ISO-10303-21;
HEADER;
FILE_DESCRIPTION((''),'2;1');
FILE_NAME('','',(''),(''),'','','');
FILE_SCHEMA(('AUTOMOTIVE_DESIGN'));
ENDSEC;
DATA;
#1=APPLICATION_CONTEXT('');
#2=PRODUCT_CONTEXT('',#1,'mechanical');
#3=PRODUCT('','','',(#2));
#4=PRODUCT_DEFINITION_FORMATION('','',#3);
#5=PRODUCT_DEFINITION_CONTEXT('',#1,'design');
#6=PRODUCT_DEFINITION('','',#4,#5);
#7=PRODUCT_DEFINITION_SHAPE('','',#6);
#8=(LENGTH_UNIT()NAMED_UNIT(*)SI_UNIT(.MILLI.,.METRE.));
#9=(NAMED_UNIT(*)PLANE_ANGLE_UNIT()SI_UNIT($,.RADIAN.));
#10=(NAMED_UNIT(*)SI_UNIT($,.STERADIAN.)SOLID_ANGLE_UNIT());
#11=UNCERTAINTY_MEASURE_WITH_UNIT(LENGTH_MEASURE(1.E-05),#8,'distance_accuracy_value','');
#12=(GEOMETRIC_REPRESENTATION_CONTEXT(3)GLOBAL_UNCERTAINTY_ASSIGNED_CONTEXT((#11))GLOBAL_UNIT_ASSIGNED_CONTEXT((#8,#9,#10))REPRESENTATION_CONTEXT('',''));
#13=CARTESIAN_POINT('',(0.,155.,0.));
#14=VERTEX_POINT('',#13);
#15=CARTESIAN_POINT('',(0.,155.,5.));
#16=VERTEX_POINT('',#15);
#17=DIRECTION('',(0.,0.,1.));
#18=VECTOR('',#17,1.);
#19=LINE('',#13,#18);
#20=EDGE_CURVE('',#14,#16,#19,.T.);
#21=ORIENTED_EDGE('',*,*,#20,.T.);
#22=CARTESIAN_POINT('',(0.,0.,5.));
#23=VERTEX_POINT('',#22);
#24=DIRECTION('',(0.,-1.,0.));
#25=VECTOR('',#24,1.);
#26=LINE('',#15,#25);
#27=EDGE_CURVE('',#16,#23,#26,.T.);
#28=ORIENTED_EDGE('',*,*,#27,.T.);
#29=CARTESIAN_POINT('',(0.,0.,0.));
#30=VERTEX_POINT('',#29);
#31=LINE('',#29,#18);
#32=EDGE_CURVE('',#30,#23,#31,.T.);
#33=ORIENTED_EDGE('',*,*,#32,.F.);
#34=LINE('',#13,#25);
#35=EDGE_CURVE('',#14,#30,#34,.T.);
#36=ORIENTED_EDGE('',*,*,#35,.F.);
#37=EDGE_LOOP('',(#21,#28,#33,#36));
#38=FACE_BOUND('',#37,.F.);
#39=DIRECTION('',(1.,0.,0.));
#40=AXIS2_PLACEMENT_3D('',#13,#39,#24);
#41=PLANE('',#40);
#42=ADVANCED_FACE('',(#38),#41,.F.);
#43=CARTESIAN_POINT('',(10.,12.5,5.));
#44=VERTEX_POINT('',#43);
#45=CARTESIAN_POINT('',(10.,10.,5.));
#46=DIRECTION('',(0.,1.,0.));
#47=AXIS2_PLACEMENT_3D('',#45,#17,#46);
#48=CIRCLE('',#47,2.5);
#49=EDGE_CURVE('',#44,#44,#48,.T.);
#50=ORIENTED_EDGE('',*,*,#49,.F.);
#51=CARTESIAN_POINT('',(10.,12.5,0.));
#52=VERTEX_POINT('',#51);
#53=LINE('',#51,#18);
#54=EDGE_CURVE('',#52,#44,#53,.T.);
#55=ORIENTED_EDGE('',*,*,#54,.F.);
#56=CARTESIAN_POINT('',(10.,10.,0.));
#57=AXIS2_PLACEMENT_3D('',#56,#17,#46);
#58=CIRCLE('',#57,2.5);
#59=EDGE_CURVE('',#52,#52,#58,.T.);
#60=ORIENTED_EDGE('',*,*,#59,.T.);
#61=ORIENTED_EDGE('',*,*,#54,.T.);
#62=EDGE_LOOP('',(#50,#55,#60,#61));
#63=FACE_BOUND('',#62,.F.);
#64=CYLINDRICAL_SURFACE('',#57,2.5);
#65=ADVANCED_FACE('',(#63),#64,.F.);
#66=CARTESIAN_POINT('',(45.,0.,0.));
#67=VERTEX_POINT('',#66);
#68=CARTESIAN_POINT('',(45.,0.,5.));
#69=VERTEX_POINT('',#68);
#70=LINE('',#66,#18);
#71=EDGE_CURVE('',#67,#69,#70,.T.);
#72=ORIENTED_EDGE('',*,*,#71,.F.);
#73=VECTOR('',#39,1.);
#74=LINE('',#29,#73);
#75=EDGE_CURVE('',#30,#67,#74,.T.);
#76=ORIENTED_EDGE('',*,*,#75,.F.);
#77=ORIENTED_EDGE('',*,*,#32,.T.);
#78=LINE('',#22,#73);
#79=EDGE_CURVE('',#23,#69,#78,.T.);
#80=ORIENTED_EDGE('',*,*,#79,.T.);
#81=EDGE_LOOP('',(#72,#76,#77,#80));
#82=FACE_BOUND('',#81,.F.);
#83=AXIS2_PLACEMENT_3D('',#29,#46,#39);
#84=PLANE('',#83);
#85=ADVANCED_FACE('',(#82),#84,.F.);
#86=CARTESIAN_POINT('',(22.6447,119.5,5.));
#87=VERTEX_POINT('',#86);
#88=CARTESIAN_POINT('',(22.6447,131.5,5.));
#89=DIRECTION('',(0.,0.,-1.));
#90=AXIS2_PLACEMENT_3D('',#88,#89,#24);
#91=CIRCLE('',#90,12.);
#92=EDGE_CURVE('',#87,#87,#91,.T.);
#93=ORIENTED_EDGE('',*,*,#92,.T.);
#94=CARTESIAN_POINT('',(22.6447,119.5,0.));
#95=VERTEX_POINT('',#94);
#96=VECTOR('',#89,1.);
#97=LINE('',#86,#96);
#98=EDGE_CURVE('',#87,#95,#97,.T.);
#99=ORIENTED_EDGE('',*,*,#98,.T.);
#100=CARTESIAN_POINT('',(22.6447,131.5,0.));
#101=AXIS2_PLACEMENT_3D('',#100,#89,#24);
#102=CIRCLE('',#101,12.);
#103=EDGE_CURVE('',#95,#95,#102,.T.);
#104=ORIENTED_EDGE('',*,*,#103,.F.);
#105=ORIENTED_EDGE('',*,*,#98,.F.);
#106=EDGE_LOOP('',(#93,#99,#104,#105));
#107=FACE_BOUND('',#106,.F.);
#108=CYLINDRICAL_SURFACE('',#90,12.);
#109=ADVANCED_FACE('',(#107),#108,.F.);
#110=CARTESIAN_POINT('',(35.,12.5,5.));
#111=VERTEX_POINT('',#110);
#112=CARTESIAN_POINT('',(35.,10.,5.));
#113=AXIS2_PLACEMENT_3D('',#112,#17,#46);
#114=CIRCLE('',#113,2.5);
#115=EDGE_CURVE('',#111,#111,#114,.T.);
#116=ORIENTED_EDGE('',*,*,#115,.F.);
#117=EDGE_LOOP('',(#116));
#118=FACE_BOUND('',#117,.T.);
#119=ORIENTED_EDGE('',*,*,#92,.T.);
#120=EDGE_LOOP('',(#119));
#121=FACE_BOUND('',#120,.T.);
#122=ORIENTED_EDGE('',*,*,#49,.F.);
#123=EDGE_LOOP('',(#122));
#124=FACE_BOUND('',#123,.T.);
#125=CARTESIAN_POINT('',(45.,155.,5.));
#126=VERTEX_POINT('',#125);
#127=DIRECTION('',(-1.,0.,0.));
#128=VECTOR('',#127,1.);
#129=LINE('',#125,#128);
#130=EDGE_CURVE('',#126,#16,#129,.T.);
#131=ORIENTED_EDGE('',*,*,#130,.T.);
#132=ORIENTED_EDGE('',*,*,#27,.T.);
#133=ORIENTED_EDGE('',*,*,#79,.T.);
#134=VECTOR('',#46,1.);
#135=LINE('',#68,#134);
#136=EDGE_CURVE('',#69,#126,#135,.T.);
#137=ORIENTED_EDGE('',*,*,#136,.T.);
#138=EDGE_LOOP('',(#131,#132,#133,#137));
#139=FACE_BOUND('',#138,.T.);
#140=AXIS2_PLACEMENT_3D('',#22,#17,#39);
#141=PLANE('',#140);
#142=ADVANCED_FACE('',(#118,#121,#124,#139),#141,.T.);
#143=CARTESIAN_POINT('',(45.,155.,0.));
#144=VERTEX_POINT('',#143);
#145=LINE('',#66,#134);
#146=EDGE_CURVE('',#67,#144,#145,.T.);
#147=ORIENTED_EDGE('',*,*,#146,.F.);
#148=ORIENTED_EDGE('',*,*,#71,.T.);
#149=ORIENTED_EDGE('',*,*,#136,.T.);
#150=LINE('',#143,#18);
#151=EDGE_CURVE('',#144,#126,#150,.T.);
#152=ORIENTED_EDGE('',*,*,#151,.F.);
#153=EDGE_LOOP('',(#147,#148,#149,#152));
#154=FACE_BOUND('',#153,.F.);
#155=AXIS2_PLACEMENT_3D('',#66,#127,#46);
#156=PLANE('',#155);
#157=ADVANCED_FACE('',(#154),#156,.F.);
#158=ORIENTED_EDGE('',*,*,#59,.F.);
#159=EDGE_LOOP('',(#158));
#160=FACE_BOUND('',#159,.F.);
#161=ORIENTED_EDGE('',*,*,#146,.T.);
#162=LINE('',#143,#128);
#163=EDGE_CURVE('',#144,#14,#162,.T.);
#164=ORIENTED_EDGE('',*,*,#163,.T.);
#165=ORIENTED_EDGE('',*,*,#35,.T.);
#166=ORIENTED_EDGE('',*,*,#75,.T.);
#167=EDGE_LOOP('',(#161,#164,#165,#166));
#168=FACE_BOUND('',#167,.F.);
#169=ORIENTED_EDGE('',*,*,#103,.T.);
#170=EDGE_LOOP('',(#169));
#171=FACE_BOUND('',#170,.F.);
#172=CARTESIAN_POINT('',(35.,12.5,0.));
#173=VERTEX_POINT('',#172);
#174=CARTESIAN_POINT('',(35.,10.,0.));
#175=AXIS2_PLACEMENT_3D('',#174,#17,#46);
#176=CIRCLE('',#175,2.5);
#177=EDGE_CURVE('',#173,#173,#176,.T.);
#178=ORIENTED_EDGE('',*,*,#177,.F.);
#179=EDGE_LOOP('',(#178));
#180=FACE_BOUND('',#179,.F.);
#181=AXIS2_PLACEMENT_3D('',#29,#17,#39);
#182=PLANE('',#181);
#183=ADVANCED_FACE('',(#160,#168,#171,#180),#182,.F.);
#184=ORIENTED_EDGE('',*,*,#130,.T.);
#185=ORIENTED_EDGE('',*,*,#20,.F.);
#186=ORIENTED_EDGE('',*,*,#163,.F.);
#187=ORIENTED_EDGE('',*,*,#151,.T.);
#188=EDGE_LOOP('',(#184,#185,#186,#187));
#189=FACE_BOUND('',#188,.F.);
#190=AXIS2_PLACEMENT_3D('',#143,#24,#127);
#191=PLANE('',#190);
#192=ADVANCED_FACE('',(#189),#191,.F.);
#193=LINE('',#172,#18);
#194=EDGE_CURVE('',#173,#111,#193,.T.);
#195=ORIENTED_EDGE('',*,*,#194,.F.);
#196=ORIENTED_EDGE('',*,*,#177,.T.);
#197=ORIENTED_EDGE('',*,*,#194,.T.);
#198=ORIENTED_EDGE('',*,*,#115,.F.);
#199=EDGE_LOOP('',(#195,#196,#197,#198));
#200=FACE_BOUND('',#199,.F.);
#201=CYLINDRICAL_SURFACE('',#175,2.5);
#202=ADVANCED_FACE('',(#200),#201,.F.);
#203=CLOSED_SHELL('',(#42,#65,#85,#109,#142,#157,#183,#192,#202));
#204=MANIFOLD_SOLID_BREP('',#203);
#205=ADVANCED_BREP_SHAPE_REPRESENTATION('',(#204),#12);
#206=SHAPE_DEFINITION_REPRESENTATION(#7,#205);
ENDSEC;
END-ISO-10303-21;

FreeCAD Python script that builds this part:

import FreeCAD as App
import Part
import Sketcher
Q = App.Units.Quantity

doc = App.newDocument("Part")
params = doc.addObject("Spreadsheet::Sheet", "Params")
for row, (alias, value) in enumerate([
    ("sketch1_width", "45 mm"),
    ("sketch1_height", "155 mm"),
    ("pad1_length", "5 mm"),
    ("sketch2_diameter", "24 mm"),
    ("hole_diameter", "24 mm"),
    ("sketch3_diameter", "5 mm"),
    ("hole2_diameter", "5 mm"),
], start=1):
    params.set(f"A{row}", alias)
    params.set(f"B{row}", "=" + value)
    params.setAlias(f"B{row}", alias)

body = doc.addObject("PartDesign::Body", "Body")

sketch1 = body.newObject("Sketcher::SketchObject", "Sketch")
sketch1.AttachmentSupport = (doc.getObject("XY_Plane"), [""])
sketch1.MapMode = "FlatFace"
sketch1.addGeometry([
    Part.LineSegment(App.Vector(0, 155, 0), App.Vector(0, 0, 0)),
    Part.LineSegment(App.Vector(0, 0, 0), App.Vector(45, 0, 0)),
    Part.LineSegment(App.Vector(45, 0, 0), App.Vector(45, 155, 0)),
    Part.LineSegment(App.Vector(45, 155, 0), App.Vector(0, 155, 0)),
], False)
sketch1.addConstraint([
    Sketcher.Constraint("Coincident", 0, 2, 1, 1),
    Sketcher.Constraint("Coincident", 1, 2, 2, 1),
    Sketcher.Constraint("Coincident", 2, 2, 3, 1),
    Sketcher.Constraint("Coincident", 3, 2, 0, 1),
    Sketcher.Constraint("Vertical", 0),
    Sketcher.Constraint("Horizontal", 1),
    Sketcher.Constraint("Vertical", 2),
    Sketcher.Constraint("Horizontal", 3),
    Sketcher.Constraint("Coincident", 0, 2, -1, 1),
    Sketcher.Constraint("DistanceX", 1, 1, 1, 2, Q("45 mm")),
    Sketcher.Constraint("DistanceY", 0, 2, 0, 1, Q("155 mm")),
])
sketch1.setExpression("Constraints[9]", "Params.sketch1_width")
sketch1.setExpression("Constraints[10]", "Params.sketch1_height")
pad1 = body.newObject("PartDesign::Pad", "Pad")
pad1.Profile = sketch1
pad1.setExpression("Length", "Params.pad1_length")

sketch2 = body.newObject("Sketcher::SketchObject", "Sketch001")
sketch2.AttachmentSupport = (doc.getObject("XY_Plane"), [""])
sketch2.MapMode = "FlatFace"
sketch2.AttachmentOffset = App.Placement(App.Vector(0, 0, 5), App.Rotation())
sketch2.addGeometry(Part.Circle(App.Vector(23, 132, 0), App.Vector(0, 0, 1), 12), False)
sketch2.addConstraint([
    Sketcher.Constraint("Diameter", 0, Q("24 mm")),
    Sketcher.Constraint("DistanceY", -1, 1, 0, 3, Q("131.5 mm")),
    Sketcher.Constraint("DistanceX", -1, 1, 0, 3, Q("22.6447 mm")),
])
sketch2.setExpression("Constraints[0]", "Params.sketch2_diameter")
doc.recompute()
hole = body.newObject("PartDesign::Hole", "Hole")
hole.Profile = sketch2
hole.ThreadType = "None"
hole.setExpression("Diameter", "Params.hole_diameter")
hole.DepthType = "ThroughAll"

sketch3 = body.newObject("Sketcher::SketchObject", "Sketch002")
sketch3.AttachmentSupport = (doc.getObject("XY_Plane"), [""])
sketch3.MapMode = "FlatFace"
sketch3.addGeometry([
    Part.Circle(App.Vector(10, 10, 0), App.Vector(0, 0, 1), 2.5),
    Part.Circle(App.Vector(35, 10, 0), App.Vector(0, 0, 1), 2.5),
], False)
sketch3.addConstraint([
    Sketcher.Constraint("Equal", 0, 1),
    Sketcher.Constraint("Horizontal", 0, 3, 1, 3),
    Sketcher.Constraint("Diameter", 0, Q("5 mm")),
    Sketcher.Constraint("DistanceX", -1, 1, 0, 3, Q("10 mm")),
    Sketcher.Constraint("DistanceY", -1, 1, 0, 3, Q("10 mm")),
    Sketcher.Constraint("DistanceX", -1, 1, 1, 3, Q("35 mm")),
])
sketch3.setExpression("Constraints[2]", "Params.sketch3_diameter")
doc.recompute()
hole2 = body.newObject("PartDesign::Hole", "Hole001")
hole2.Profile = sketch3
hole2.ThreadType = "None"
hole2.setExpression("Diameter", "Params.hole2_diameter")
hole2.DepthType = "ThroughAll"
hole2.Reversed = True

doc.recompute()
